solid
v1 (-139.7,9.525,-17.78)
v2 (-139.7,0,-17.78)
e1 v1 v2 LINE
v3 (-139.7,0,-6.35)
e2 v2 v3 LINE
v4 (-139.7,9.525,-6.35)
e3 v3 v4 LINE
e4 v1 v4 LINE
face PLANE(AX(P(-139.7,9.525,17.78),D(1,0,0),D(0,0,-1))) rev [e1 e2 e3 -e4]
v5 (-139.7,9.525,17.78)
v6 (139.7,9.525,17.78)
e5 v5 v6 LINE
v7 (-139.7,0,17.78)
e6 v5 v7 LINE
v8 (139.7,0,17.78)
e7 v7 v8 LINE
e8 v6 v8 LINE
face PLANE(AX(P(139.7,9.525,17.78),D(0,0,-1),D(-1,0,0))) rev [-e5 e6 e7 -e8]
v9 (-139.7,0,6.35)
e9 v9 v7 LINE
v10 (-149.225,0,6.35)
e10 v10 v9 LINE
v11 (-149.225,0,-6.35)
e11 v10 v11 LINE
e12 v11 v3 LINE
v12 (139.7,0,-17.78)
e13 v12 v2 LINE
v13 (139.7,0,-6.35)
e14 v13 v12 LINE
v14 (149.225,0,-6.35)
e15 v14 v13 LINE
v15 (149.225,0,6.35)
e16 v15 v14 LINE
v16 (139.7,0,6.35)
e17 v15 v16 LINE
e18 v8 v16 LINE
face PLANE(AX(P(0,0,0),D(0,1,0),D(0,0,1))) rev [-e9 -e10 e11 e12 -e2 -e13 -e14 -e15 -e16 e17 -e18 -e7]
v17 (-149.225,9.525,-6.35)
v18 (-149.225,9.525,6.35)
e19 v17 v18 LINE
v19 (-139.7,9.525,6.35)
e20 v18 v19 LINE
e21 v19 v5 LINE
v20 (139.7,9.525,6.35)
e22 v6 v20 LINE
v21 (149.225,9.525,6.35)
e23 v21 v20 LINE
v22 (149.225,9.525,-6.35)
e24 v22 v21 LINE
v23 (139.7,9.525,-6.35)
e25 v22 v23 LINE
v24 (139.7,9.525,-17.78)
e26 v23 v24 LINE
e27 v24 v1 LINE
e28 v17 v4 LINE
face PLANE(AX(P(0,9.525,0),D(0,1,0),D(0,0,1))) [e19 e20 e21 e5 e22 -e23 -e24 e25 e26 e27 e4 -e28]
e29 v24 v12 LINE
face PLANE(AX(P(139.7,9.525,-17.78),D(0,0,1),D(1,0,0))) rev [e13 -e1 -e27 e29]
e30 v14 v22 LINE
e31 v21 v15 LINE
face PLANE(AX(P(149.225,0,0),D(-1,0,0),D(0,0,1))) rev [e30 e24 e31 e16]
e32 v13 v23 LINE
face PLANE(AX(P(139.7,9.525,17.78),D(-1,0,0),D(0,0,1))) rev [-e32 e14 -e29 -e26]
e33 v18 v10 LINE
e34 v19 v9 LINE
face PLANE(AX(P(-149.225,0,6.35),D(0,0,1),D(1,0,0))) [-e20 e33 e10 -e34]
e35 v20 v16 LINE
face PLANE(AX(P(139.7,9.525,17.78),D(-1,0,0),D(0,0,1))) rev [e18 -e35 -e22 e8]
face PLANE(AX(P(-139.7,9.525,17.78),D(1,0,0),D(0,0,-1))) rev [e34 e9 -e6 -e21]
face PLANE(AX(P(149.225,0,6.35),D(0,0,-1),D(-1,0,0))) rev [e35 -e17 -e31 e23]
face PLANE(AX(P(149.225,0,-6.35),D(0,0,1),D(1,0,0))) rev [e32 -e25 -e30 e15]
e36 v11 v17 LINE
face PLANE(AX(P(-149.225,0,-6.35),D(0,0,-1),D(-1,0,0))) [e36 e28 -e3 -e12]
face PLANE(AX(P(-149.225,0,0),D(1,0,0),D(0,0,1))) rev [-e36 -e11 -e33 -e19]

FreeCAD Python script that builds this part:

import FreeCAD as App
import Part
import Sketcher

V = App.Vector
Q = App.Units.Quantity

doc = App.newDocument("Part")
body = doc.addObject("PartDesign::Body", "Body")

# Sketch on XZ plane
sketch1 = doc.addObject("Sketcher::SketchObject", "Sketch")
body.addObject(sketch1)
sketch1.AttachmentSupport = (doc.XZ_Plane, [""])
sketch1.MapMode = "FlatFace"
sketch1.addGeometry([
    Part.LineSegment(V(-139.7, -17.78, 0), V(-139.7, 17.78, 0)),
    Part.LineSegment(V(-139.7, 17.78, 0), V(139.7, 17.78, 0)),
    Part.LineSegment(V(139.7, 17.78, 0), V(139.7, -17.78, 0)),
    Part.LineSegment(V(139.7, -17.78, 0), V(-139.7, -17.78, 0)),
], False)
sketch1.addConstraint([
    Sketcher.Constraint("Coincident", 0, 2, 1, 1),
    Sketcher.Constraint("Coincident", 1, 2, 2, 1),
    Sketcher.Constraint("Coincident", 2, 2, 3, 1),
    Sketcher.Constraint("Coincident", 3, 2, 0, 1),
    Sketcher.Constraint("Vertical", 0),
    Sketcher.Constraint("Horizontal", 1),
    Sketcher.Constraint("Vertical", 2),
    Sketcher.Constraint("Horizontal", 3),
    Sketcher.Constraint("Symmetric", 0, 2, 2, 2, -1, 1),
    Sketcher.Constraint("DistanceX", 1, 1, 1, 2, Q("11 in")),
    Sketcher.Constraint("DistanceY", 0, 1, 0, 2, Q("1.4 in")),
])
pad1 = doc.addObject("PartDesign::Pad", "Pad")
body.addObject(pad1)
pad1.Profile = sketch1
pad1.Length = Q("0.375 in")
pad1.Reversed = True

# Sketch on YZ plane
sketch2 = doc.addObject("Sketcher::SketchObject", "Sketch001")
body.addObject(sketch2)
sketch2.AttachmentSupport = (doc.YZ_Plane, [""])
sketch2.MapMode = "FlatFace"
sketch2.AttachmentOffset = App.Placement(V(0, 0, 5.5 * 25.4), App.Rotation())
sketch2.addGeometry([
    Part.LineSegment(V(9.525, 6.35, 0), V(0, 6.35, 0)),
    Part.LineSegment(V(0, 6.35, 0), V(0, -6.35, 0)),
    Part.LineSegment(V(0, -6.35, 0), V(9.525, -6.35, 0)),
    Part.LineSegment(V(9.525, -6.35, 0), V(9.525, 6.35, 0)),
], False)
sketch2.addConstraint([
    Sketcher.Constraint("Coincident", 0, 2, 1, 1),
    Sketcher.Constraint("Coincident", 1, 2, 2, 1),
    Sketcher.Constraint("Coincident", 2, 2, 3, 1),
    Sketcher.Constraint("Coincident", 3, 2, 0, 1),
    Sketcher.Constraint("Horizontal", 0),
    Sketcher.Constraint("Vertical", 1),
    Sketcher.Constraint("Horizontal", 2),
    Sketcher.Constraint("Vertical", 3),
    Sketcher.Constraint("Symmetric", 0, 2, 1, 2, -1, 1),
    Sketcher.Constraint("DistanceY", 1, 2, 1, 1, Q("0.5 in")),
    Sketcher.Constraint("DistanceX", 0, 2, 0, 1, Q("0.375 in")),
])
pad2 = doc.addObject("PartDesign::Pad", "Pad001")
body.addObject(pad2)
pad2.Profile = sketch2
pad2.Length = Q("0.375 in")
doc.recompute()

mirrored = doc.addObject("PartDesign::Mirrored", "Mirrored")
body.addObject(mirrored)
mirrored.Originals = [pad2]
mirrored.MirrorPlane = (doc.YZ_Plane, [""])
body.Tip = mirrored

doc.recompute()
